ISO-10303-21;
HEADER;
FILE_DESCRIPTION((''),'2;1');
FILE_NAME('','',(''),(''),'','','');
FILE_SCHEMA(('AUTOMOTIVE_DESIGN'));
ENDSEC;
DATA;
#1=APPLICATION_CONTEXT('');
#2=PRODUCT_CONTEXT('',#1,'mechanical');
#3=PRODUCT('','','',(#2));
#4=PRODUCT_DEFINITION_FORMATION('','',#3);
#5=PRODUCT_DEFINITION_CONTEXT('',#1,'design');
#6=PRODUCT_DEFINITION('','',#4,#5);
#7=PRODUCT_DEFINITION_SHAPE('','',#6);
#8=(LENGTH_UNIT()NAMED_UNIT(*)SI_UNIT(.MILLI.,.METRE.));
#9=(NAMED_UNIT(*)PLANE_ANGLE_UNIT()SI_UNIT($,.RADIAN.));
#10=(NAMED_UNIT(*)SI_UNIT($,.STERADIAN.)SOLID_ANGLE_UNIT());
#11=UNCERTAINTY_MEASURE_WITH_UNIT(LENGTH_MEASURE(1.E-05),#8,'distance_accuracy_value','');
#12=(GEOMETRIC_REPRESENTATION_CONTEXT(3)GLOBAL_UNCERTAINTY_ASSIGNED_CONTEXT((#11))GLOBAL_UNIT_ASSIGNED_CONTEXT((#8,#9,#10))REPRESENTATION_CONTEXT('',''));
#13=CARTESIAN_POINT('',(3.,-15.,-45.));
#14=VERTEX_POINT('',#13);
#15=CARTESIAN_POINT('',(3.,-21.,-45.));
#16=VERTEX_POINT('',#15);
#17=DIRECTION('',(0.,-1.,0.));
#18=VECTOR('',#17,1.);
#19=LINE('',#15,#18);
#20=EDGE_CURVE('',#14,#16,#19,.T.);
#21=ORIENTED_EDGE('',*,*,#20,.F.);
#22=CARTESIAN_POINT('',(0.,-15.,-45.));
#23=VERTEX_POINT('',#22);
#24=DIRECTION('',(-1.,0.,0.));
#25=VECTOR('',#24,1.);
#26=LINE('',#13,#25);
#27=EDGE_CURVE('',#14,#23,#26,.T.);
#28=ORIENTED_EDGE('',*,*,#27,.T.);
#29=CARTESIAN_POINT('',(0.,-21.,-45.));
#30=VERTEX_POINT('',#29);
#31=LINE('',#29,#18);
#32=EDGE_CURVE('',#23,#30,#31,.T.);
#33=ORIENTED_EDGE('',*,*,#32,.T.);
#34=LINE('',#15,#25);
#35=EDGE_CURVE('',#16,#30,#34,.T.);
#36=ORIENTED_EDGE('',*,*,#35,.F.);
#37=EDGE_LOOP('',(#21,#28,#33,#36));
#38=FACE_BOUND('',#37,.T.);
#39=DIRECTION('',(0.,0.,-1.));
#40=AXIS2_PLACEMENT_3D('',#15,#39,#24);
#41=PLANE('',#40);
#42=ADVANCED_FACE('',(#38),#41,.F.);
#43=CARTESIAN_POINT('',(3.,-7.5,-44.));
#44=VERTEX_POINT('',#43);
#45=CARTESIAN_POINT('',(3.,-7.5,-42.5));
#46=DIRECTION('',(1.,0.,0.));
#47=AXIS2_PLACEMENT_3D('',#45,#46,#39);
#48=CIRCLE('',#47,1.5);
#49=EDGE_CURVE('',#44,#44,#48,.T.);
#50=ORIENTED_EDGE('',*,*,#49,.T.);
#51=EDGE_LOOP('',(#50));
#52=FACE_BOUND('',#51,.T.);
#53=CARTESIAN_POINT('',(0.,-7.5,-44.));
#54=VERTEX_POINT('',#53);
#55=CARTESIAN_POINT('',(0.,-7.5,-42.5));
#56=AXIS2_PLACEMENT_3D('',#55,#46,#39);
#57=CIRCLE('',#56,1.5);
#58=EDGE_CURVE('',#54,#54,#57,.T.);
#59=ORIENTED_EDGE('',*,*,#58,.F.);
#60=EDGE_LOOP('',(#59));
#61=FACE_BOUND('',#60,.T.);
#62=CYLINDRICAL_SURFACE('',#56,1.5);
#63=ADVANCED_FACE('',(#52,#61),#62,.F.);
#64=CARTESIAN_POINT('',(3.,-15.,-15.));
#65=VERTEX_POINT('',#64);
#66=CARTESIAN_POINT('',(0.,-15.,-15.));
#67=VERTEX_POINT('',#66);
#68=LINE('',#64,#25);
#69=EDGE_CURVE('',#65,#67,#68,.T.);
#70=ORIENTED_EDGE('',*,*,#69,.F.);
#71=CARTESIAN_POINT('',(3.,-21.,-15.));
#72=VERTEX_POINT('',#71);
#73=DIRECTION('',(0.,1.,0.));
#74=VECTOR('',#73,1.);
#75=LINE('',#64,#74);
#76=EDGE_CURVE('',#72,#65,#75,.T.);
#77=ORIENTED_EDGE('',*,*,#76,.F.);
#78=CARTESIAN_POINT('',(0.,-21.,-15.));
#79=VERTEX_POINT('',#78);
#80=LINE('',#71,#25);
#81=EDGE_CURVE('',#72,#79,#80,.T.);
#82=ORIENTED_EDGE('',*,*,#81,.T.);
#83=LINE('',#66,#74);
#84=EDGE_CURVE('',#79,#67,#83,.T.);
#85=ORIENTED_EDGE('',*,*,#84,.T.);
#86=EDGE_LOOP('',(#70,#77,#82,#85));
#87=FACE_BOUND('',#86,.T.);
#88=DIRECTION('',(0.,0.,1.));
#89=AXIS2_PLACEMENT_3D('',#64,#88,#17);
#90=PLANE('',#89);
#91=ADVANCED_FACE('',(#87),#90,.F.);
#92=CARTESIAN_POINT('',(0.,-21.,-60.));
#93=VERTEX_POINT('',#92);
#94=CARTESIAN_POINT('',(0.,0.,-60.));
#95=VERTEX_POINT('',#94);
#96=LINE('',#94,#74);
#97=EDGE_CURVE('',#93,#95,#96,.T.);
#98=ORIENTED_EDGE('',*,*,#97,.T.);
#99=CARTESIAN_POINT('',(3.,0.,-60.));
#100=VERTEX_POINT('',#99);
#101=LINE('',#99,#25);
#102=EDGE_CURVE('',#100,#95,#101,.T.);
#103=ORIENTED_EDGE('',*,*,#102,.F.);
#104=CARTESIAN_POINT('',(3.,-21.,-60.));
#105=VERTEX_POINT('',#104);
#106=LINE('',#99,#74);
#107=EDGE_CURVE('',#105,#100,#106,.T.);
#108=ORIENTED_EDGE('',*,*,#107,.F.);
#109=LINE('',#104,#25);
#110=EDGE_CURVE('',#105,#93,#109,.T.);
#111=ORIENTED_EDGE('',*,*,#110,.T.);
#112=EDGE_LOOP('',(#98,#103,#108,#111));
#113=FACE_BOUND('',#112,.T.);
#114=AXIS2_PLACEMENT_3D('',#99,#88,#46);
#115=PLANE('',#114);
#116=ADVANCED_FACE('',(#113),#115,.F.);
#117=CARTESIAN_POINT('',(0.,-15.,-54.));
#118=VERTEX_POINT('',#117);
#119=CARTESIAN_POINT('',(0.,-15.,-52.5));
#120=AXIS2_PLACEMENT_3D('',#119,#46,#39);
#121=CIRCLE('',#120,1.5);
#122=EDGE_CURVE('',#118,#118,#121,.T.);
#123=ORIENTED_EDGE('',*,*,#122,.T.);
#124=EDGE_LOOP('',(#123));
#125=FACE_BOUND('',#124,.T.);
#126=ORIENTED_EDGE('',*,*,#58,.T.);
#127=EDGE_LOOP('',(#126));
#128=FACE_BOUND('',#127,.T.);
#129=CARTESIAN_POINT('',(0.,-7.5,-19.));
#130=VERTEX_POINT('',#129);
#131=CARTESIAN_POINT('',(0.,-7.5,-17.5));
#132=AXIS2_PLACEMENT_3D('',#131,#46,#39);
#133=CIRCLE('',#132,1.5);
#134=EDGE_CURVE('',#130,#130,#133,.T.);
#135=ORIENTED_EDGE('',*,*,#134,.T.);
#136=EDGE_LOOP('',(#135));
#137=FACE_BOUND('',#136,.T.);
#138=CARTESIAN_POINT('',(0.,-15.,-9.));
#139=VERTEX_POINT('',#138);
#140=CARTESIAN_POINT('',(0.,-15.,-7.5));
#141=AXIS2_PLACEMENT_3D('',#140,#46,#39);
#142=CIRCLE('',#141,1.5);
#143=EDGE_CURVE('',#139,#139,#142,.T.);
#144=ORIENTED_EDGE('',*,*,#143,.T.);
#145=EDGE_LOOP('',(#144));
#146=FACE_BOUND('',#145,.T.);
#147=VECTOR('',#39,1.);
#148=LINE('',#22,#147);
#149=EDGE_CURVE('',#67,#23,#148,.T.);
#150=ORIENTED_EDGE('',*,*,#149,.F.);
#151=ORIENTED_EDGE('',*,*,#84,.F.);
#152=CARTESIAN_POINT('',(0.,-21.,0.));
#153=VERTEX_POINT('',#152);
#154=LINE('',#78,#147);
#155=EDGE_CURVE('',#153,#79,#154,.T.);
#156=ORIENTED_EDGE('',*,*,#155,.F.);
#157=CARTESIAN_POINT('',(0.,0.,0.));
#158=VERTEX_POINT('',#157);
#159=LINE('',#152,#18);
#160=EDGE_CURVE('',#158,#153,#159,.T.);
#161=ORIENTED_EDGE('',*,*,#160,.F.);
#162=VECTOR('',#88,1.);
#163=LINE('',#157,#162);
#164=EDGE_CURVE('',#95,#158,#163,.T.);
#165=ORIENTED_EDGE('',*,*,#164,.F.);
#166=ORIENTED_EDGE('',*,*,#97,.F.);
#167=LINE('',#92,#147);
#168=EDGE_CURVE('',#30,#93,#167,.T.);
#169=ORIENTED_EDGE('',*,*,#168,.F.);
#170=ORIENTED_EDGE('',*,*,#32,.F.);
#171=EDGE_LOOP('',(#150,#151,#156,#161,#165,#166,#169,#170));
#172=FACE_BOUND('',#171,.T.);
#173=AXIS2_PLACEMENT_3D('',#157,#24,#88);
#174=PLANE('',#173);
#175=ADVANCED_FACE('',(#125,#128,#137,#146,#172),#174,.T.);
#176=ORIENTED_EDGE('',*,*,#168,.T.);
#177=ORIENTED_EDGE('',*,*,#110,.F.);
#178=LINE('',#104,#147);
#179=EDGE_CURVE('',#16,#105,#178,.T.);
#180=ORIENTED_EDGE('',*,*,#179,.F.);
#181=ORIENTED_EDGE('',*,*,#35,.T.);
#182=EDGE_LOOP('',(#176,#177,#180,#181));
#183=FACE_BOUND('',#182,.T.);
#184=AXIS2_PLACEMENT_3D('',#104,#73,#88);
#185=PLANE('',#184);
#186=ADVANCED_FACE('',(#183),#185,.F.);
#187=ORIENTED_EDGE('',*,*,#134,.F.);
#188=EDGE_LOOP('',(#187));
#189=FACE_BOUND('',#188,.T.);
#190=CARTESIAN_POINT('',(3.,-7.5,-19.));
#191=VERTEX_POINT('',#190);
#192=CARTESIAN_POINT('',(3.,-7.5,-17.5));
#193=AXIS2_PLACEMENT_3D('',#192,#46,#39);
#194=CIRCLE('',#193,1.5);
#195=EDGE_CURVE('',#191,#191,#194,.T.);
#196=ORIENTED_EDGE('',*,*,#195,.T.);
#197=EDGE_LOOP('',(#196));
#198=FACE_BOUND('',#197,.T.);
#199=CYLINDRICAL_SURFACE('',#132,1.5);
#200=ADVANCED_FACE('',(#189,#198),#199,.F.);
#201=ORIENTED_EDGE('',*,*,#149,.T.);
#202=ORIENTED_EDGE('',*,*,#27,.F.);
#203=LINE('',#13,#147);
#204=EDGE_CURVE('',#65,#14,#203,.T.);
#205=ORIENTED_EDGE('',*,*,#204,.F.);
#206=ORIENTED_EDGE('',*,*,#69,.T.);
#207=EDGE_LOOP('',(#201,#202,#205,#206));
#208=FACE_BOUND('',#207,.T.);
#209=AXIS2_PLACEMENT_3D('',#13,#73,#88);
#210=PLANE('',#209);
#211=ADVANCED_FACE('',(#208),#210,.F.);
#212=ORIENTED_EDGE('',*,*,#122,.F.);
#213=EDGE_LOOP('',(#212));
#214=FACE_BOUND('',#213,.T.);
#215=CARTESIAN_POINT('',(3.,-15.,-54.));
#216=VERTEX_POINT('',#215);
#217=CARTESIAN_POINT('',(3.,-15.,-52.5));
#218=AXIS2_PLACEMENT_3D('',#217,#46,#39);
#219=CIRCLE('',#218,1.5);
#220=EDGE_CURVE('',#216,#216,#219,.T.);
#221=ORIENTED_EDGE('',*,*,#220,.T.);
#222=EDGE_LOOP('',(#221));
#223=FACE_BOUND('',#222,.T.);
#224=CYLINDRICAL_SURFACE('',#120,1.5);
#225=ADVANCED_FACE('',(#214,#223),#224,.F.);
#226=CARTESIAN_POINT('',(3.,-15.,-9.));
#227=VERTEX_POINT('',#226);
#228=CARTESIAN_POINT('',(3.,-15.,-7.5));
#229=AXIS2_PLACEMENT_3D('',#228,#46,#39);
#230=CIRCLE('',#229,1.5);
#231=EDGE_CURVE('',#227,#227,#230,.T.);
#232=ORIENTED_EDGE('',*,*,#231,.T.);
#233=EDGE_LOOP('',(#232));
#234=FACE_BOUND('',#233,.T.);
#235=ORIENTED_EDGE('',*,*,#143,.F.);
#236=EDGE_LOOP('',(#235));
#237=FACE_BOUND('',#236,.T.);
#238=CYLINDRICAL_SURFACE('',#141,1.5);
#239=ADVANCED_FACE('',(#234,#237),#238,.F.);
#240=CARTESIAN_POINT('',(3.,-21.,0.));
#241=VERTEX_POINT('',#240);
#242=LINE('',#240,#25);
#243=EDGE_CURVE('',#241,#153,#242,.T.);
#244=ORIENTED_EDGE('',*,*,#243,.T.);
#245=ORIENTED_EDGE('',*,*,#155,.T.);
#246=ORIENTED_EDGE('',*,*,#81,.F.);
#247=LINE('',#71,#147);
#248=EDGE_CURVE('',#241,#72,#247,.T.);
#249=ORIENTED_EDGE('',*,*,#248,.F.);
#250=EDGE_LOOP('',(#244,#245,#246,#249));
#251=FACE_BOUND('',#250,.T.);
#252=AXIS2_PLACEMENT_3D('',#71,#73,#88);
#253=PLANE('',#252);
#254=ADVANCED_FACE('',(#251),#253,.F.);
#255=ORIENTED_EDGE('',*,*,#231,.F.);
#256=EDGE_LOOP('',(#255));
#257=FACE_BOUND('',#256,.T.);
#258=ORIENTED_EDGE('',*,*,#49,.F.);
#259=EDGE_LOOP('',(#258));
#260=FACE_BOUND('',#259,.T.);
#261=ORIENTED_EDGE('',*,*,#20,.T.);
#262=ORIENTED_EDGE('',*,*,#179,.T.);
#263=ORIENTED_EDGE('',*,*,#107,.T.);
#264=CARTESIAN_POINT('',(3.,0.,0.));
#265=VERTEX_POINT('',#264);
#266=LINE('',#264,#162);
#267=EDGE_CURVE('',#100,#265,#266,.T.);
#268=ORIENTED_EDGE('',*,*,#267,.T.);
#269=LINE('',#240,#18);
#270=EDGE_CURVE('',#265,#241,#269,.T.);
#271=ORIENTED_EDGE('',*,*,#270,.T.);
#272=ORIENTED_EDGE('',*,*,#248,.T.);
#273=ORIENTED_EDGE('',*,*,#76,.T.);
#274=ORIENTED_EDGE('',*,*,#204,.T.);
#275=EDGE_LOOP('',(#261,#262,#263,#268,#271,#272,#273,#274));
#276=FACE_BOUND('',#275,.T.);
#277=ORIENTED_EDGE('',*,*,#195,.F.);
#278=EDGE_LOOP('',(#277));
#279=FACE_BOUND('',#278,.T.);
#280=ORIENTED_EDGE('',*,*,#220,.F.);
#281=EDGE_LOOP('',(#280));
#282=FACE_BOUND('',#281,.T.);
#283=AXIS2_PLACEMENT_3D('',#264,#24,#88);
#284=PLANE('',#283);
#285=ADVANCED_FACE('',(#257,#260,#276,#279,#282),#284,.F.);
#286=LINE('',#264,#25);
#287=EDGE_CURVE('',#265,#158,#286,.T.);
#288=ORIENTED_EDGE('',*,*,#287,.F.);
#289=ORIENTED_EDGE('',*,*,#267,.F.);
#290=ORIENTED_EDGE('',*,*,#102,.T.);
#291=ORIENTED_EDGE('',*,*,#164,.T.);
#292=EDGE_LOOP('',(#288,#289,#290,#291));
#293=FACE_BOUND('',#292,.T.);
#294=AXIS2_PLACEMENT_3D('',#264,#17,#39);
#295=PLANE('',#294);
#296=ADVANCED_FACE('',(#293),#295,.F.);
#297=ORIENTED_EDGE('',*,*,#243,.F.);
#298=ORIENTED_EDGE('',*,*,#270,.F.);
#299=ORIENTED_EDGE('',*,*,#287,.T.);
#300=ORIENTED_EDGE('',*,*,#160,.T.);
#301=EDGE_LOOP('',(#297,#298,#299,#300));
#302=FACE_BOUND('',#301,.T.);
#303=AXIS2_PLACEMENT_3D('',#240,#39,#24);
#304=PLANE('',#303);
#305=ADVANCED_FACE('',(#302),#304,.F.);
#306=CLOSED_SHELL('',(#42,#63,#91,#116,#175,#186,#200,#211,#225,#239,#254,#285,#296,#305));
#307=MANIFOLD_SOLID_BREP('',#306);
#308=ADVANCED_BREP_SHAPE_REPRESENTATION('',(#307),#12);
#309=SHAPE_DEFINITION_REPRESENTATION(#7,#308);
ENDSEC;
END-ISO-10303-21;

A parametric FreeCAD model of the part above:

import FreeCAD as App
import Part
import Sketcher
from FreeCAD import Vector
Q = App.Units.Quantity


def add_polygon(sketch, points):
    """Adds a closed chain of lines whose ends are joined by coincident constraints."""
    first, n = sketch.GeometryCount, len(points)
    for a, b in zip(points, points[1:] + points[:1]):
        sketch.addGeometry(Part.LineSegment(App.Vector(*a, 0), App.Vector(*b, 0)), False)
    for i in range(n):
        sketch.addConstraint(Sketcher.Constraint("Coincident", first + i, 2, first + (i + 1) % n, 1))

doc = App.newDocument("Part")
body = doc.addObject("PartDesign::Body", "Body")

sketch1 = body.newObject("Sketcher::SketchObject", "Sketch")
sketch1.AttachmentSupport = (doc.getObject("YZ_Plane"), [""])
sketch1.MapMode = "FlatFace"
add_polygon(sketch1, [(0, -60), (0, 0), (-21, 0), (-21, -15), (-15, -15), (-15, -45), (-21, -45), (-21, -60)])
sketch1.addConstraint([
    Sketcher.Constraint("Vertical", 0),
    Sketcher.Constraint("Horizontal", 1),
    Sketcher.Constraint("Vertical", 2),
    Sketcher.Constraint("Horizontal", 3),
    Sketcher.Constraint("Vertical", 4),
    Sketcher.Constraint("Horizontal", 5),
    Sketcher.Constraint("Vertical", 6),
    Sketcher.Constraint("Horizontal", 7),
    Sketcher.Constraint("Coincident", 0, 2, -1, 1),
    Sketcher.Constraint("Vertical", 2, 2, 5, 2),
    Sketcher.Constraint("Equal", 2, 6),
    Sketcher.Constraint("DistanceX", 1, 2, 1, 1, Q("21 mm")),
    Sketcher.Constraint("DistanceX", 3, 1, 3, 2, Q("6 mm")),
    Sketcher.Constraint("DistanceY", 0, 1, 0, 2, Q("60 mm")),
    Sketcher.Constraint("DistanceY", 2, 2, 2, 1, Q("15 mm")),
])
pad1 = body.newObject("PartDesign::Pad", "Pad")
pad1.Profile = sketch1
pad1.Length = 3

sketch2 = body.newObject("Sketcher::SketchObject", "Sketch001")
sketch2.AttachmentSupport = (doc.getObject("YZ_Plane"), [""])
sketch2.MapMode = "FlatFace"
sketch2.AttachmentOffset = App.Placement(Vector(0, 0, 3), App.Rotation())
sketch2.addGeometry([
    Part.Circle(Vector(-7.5, -42.5, 0), Vector(0, 0, 1), 1.5),
    Part.Circle(Vector(-7.5, -17.5, 0), Vector(0, 0, 1), 1.5),
    Part.Circle(Vector(-15, -52.5, 0), Vector(0, 0, 1), 1.5),
    Part.Circle(Vector(-15, -7.5, 0), Vector(0, 0, 1), 1.5),
], False)
sketch2.addConstraint([
    Sketcher.Constraint("Equal", 0, 1),
    Sketcher.Constraint("Equal", 1, 2),
    Sketcher.Constraint("Equal", 2, 3),
    Sketcher.Constraint("Vertical", 0, 3, 1, 3),
    Sketcher.Constraint("Vertical", 2, 3, 3, 3),
    Sketcher.Constraint("Diameter", 0, Q("3 mm")),
    Sketcher.Constraint("DistanceX", 2, 3, -1, 1, Q("15 mm")),
    Sketcher.Constraint("DistanceY", 0, 3, 1, 3, Q("25 mm")),
    Sketcher.Constraint("DistanceY", 2, 3, 0, 3, Q("10 mm")),
    Sketcher.Constraint("DistanceY", 1, 3, 3, 3, Q("10 mm")),
    Sketcher.Constraint("DistanceX", 0, 3, -1, 1, Q("7.5 mm")),
    Sketcher.Constraint("DistanceY", 0, 3, -1, 1, Q("42.5 mm")),
])
pocket1 = body.newObject("PartDesign::Pocket", "Pocket")
pocket1.Profile = sketch2
pocket1.Length = 3

doc.recompute()
